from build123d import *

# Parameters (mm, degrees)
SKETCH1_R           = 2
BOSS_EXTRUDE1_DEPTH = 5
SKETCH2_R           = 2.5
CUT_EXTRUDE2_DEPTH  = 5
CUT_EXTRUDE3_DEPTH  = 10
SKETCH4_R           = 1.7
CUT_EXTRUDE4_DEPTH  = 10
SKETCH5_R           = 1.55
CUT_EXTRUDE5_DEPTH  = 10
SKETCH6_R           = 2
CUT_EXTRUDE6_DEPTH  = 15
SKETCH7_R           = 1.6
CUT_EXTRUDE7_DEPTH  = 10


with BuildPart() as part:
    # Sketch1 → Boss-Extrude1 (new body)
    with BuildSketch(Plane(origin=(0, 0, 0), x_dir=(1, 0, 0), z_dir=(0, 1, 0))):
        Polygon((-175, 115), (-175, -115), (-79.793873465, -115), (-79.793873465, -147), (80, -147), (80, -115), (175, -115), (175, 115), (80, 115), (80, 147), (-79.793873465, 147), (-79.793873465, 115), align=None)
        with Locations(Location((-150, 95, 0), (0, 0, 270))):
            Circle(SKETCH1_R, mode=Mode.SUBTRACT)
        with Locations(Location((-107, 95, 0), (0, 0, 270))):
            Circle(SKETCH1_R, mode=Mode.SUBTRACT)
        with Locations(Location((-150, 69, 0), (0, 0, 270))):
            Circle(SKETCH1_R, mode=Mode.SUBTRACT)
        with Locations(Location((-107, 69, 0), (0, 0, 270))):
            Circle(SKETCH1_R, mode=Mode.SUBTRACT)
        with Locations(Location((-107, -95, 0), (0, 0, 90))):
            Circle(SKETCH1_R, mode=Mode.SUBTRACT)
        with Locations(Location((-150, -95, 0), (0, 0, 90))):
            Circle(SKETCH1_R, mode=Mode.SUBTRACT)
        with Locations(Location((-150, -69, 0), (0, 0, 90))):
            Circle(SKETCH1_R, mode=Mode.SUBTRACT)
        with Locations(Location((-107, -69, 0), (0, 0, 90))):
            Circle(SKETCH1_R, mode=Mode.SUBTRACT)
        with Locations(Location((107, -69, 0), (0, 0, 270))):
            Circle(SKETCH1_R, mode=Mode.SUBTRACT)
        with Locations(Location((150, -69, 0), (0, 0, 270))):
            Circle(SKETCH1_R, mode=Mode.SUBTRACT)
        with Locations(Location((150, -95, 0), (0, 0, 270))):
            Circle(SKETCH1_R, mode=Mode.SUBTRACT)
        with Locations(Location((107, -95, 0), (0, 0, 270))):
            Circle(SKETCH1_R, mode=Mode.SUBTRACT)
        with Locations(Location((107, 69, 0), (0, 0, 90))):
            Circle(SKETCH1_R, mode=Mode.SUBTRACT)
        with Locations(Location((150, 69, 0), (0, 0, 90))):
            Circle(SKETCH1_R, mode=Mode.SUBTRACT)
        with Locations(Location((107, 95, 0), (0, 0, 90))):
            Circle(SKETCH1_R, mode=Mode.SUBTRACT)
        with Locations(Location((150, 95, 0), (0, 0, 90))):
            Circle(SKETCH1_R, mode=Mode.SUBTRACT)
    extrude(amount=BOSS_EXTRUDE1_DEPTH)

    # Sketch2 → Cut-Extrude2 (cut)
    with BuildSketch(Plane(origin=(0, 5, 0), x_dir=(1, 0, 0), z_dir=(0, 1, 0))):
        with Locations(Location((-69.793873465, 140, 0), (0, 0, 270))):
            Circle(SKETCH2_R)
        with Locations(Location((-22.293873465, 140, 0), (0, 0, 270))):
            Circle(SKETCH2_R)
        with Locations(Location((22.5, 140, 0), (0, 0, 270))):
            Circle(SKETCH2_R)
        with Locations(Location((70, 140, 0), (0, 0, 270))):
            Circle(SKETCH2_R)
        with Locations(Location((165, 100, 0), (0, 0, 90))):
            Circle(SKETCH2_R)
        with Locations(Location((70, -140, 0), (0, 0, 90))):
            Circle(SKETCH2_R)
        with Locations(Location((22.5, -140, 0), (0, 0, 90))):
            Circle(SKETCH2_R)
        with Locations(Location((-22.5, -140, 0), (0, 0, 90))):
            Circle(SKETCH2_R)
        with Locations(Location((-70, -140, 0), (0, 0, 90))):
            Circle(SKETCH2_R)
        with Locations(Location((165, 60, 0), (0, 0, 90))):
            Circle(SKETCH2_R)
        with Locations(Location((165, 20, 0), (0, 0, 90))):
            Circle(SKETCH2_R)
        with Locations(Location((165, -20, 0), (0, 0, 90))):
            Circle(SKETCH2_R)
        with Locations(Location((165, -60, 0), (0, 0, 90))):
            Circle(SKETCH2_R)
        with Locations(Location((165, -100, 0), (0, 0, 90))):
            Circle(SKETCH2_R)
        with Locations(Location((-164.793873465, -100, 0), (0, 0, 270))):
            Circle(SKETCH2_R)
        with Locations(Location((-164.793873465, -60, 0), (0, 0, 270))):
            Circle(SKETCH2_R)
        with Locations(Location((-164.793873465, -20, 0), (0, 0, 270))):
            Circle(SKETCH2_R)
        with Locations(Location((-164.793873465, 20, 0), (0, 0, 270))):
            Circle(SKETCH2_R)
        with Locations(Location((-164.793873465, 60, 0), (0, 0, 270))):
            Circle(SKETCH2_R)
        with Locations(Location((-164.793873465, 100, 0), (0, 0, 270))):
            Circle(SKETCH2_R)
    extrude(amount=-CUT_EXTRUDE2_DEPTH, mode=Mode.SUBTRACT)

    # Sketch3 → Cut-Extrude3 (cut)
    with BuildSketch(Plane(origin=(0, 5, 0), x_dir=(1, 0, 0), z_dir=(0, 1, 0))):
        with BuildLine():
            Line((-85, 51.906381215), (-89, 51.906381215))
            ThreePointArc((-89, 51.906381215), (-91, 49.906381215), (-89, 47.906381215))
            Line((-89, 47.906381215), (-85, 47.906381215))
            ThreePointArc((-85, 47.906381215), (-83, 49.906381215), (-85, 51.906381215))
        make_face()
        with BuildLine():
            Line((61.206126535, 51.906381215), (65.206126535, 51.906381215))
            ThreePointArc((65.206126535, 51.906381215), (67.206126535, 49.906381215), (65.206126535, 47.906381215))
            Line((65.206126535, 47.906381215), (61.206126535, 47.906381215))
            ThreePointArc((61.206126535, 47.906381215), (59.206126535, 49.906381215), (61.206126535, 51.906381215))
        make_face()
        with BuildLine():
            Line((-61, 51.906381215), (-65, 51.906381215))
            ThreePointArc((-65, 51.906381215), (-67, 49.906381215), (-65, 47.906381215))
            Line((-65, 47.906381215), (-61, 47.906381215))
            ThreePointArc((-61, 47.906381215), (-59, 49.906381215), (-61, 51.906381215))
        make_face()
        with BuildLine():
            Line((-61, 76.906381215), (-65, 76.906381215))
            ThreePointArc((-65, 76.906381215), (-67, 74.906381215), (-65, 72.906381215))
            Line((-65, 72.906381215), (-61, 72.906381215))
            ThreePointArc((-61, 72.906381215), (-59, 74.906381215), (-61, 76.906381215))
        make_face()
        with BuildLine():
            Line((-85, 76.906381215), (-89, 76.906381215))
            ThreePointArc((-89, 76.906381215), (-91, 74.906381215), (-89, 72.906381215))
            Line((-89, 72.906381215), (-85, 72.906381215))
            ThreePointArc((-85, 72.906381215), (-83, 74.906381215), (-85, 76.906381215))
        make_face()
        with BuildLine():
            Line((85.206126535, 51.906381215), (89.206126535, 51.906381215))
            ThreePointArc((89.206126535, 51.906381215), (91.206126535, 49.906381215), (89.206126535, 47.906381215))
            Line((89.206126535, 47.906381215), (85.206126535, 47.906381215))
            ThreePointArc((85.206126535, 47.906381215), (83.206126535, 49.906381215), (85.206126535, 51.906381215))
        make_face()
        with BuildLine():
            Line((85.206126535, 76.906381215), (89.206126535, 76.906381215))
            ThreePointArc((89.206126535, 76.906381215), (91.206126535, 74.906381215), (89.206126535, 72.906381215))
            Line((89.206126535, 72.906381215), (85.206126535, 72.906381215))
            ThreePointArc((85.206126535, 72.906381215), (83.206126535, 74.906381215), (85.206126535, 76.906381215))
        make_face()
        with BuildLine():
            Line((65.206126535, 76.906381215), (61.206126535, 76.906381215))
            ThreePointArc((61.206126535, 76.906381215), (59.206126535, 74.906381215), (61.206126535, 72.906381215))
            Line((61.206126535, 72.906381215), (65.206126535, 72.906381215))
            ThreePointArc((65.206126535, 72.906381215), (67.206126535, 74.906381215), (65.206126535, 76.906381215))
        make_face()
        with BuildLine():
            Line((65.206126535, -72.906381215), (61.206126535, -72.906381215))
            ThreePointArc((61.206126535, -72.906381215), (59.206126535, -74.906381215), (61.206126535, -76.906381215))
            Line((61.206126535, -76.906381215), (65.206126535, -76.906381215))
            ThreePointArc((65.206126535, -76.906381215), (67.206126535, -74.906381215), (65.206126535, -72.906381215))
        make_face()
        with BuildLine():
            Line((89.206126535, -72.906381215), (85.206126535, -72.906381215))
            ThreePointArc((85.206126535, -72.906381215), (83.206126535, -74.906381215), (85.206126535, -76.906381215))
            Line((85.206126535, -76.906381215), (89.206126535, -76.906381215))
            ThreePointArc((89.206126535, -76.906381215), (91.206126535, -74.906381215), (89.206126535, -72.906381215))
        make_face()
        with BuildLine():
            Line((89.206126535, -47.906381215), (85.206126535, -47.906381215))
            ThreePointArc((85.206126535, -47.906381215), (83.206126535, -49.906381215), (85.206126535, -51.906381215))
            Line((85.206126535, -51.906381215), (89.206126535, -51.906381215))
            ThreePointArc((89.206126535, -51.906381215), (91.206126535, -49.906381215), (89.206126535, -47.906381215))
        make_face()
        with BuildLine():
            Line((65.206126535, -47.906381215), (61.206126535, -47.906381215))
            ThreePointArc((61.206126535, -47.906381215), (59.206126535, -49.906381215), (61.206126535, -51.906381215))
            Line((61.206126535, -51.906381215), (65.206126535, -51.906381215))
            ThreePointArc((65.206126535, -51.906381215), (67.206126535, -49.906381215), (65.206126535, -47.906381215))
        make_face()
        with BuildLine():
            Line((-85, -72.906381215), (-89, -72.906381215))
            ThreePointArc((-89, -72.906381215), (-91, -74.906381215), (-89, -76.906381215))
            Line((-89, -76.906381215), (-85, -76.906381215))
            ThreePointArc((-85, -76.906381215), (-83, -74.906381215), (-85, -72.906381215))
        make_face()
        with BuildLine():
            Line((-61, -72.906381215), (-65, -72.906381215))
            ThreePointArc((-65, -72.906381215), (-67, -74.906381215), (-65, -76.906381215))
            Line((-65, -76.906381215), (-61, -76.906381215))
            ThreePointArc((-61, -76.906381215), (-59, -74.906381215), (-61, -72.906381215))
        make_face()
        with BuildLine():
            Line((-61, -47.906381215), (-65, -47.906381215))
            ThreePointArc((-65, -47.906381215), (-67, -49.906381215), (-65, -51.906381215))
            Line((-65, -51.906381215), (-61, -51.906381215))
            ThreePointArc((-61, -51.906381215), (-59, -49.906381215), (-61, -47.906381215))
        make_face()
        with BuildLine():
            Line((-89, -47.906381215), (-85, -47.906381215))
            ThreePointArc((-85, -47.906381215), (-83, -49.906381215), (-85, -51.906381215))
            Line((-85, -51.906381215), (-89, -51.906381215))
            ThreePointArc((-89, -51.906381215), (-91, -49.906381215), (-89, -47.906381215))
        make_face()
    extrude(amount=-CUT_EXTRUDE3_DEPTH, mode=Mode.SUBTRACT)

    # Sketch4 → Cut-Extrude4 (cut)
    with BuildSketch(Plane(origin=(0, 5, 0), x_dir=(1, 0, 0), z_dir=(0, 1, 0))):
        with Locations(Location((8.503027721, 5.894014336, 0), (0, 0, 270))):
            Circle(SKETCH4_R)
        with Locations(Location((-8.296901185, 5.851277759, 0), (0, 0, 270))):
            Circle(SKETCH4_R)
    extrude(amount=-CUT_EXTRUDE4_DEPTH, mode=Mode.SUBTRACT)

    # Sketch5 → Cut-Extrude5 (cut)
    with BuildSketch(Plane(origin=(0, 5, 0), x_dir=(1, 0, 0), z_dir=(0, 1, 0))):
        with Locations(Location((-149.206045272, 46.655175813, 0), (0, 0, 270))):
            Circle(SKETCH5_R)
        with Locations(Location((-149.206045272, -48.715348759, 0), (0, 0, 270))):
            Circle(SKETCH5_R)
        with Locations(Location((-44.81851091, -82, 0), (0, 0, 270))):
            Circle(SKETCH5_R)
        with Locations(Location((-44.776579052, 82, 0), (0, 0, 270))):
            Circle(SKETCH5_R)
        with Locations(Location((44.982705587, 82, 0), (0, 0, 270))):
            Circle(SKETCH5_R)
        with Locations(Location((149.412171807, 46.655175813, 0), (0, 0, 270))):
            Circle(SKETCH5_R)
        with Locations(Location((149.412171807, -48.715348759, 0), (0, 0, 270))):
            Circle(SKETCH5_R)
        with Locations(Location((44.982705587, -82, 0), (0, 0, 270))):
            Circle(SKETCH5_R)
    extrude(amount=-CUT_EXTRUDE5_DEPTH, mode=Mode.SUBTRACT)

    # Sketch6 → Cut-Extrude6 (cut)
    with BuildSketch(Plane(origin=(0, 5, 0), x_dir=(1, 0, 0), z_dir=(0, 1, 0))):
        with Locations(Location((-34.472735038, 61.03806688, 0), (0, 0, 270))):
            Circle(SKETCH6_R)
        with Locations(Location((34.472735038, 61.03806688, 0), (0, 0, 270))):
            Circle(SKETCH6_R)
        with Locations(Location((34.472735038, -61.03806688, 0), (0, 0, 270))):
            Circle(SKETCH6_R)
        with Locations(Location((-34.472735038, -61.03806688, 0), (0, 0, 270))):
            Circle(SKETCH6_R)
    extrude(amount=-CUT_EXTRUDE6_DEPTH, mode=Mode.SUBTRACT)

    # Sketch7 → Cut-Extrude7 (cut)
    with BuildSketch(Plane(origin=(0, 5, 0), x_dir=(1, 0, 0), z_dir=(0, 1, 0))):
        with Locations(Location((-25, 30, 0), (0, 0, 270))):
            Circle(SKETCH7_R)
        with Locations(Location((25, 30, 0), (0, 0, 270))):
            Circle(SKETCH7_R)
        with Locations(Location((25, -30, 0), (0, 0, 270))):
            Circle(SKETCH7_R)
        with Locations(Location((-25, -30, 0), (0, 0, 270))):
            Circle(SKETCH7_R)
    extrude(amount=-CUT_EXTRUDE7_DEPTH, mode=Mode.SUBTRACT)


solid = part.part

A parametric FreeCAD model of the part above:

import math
import FreeCAD as App
import Part
import Sketcher

doc = App.newDocument("Part")
body = doc.addObject("PartDesign::Body", "Body")

# Sketch on XZ plane
sketch1 = body.newObject("Sketcher::SketchObject", "Sketch")
sketch1.AttachmentSupport = (doc.getObject("XZ_Plane"), [""])
sketch1.MapMode = "FlatFace"
sketch1.addGeometry([
    Part.LineSegment(App.Vector(-175, -115, 0), App.Vector(-175, 115, 0)),  # 0
    Part.LineSegment(App.Vector(-175, 115, 0), App.Vector(-79.8, 115, 0)),  # 1
    Part.LineSegment(App.Vector(-79.8, 115, 0), App.Vector(-79.8, 147, 0)),  # 2
    Part.LineSegment(App.Vector(-79.8, 147, 0), App.Vector(80, 147, 0)),  # 3
    Part.LineSegment(App.Vector(80, 147, 0), App.Vector(80, 115, 0)),  # 4
    Part.LineSegment(App.Vector(80, 115, 0), App.Vector(175, 115, 0)),  # 5
    Part.LineSegment(App.Vector(175, 115, 0), App.Vector(175, -115, 0)),  # 6
    Part.LineSegment(App.Vector(175, -115, 0), App.Vector(80, -115, 0)),  # 7
    Part.LineSegment(App.Vector(80, -115, 0), App.Vector(80, -147, 0)),  # 8
    Part.LineSegment(App.Vector(80, -147, 0), App.Vector(-79.8, -147, 0)),  # 9
    Part.LineSegment(App.Vector(-79.8, -147, 0), App.Vector(-79.8, -115, 0)),  # 10
    Part.LineSegment(App.Vector(-79.8, -115, 0), App.Vector(-175, -115, 0)),  # 11
    Part.Circle(App.Vector(-150, 95, 0), App.Vector(0, 0, 1), 2),  # 12
    Part.Circle(App.Vector(-107, 95, 0), App.Vector(0, 0, 1), 2),  # 13
    Part.Circle(App.Vector(-150, 69, 0), App.Vector(0, 0, 1), 2),  # 14
    Part.Circle(App.Vector(-107, 69, 0), App.Vector(0, 0, 1), 2),  # 15
    Part.Circle(App.Vector(107, 95, 0), App.Vector(0, 0, 1), 2),  # 16
    Part.Circle(App.Vector(150, 95, 0), App.Vector(0, 0, 1), 2),  # 17
    Part.Circle(App.Vector(107, 69, 0), App.Vector(0, 0, 1), 2),  # 18
    Part.Circle(App.Vector(150, 69, 0), App.Vector(0, 0, 1), 2),  # 19
    Part.Circle(App.Vector(-150, -69, 0), App.Vector(0, 0, 1), 2),  # 20
    Part.Circle(App.Vector(-107, -69, 0), App.Vector(0, 0, 1), 2),  # 21
    Part.Circle(App.Vector(-150, -95, 0), App.Vector(0, 0, 1), 2),  # 22
    Part.Circle(App.Vector(-107, -95, 0), App.Vector(0, 0, 1), 2),  # 23
    Part.Circle(App.Vector(107, -69, 0), App.Vector(0, 0, 1), 2),  # 24
    Part.Circle(App.Vector(150, -69, 0), App.Vector(0, 0, 1), 2),  # 25
    Part.Circle(App.Vector(107, -95, 0), App.Vector(0, 0, 1), 2),  # 26
    Part.Circle(App.Vector(150, -95, 0), App.Vector(0, 0, 1), 2),  # 27
], False)
sketch1.addConstraint([
    Sketcher.Constraint("Coincident", 0, 2, 1, 1),
    Sketcher.Constraint("Coincident", 1, 2, 2, 1),
    Sketcher.Constraint("Coincident", 2, 2, 3, 1),
    Sketcher.Constraint("Coincident", 3, 2, 4, 1),
    Sketcher.Constraint("Coincident", 4, 2, 5, 1),
    Sketcher.Constraint("Coincident", 5, 2, 6, 1),
    Sketcher.Constraint("Coincident", 6, 2, 7, 1),
    Sketcher.Constraint("Coincident", 7, 2, 8, 1),
    Sketcher.Constraint("Coincident", 8, 2, 9, 1),
    Sketcher.Constraint("Coincident", 9, 2, 10, 1),
    Sketcher.Constraint("Coincident", 10, 2, 11, 1),
    Sketcher.Constraint("Coincident", 11, 2, 0, 1),
    Sketcher.Constraint("Vertical", 0),
    Sketcher.Constraint("Horizontal", 1),
    Sketcher.Constraint("Vertical", 2),
    Sketcher.Constraint("Horizontal", 3),
    Sketcher.Constraint("Vertical", 4),
    Sketcher.Constraint("Horizontal", 5),
    Sketcher.Constraint("Vertical", 6),
    Sketcher.Constraint("Horizontal", 7),
    Sketcher.Constraint("Vertical", 8),
    Sketcher.Constraint("Horizontal", 9),
    Sketcher.Constraint("Vertical", 10),
    Sketcher.Constraint("Horizontal", 11),
    Sketcher.Constraint("Equal", 12, 13),
    Sketcher.Constraint("Equal", 13, 14),
    Sketcher.Constraint("Equal", 14, 15),
    Sketcher.Constraint("Equal", 15, 16),
    Sketcher.Constraint("Equal", 16, 17),
    Sketcher.Constraint("Equal", 17, 18),
    Sketcher.Constraint("Equal", 18, 19),
    Sketcher.Constraint("Equal", 19, 20),
    Sketcher.Constraint("Equal", 20, 21),
    Sketcher.Constraint("Equal", 21, 22),
    Sketcher.Constraint("Equal", 22, 23),
    Sketcher.Constraint("Equal", 23, 24),
    Sketcher.Constraint("Equal", 24, 25),
    Sketcher.Constraint("Equal", 25, 26),
    Sketcher.Constraint("Equal", 26, 27),
    Sketcher.Constraint("Symmetric", 19, 3, 20, 3, -1, 1),
    Sketcher.Constraint("Symmetric", 18, 3, 21, 3, -1, 1),
    Sketcher.Constraint("Symmetric", 17, 3, 22, 3, -1, 1),
    Sketcher.Constraint("Symmetric", 16, 3, 23, 3, -1, 1),
    Sketcher.Constraint("Symmetric", 15, 3, 24, 3, -1, 1),
    Sketcher.Constraint("Symmetric", 14, 3, 25, 3, -1, 1),
    Sketcher.Constraint("Symmetric", 13, 3, 26, 3, -1, 1),
    Sketcher.Constraint("Symmetric", 12, 3, 27, 3, -1, 1),
    Sketcher.Constraint("Symmetric", 0, 2, 6, 2, -1, 1),
    Sketcher.Constraint("Symmetric", 13, 3, 16, 3, -2),
    Sketcher.Constraint("Symmetric", 12, 3, 17, 3, -2),
    Sketcher.Constraint("Symmetric", 15, 3, 18, 3, -2),
    Sketcher.Constraint("Symmetric", 14, 3, 19, 3, -2),
    Sketcher.Constraint("Symmetric", 4, 2, 7, 2, -1),
    Sketcher.Constraint("Symmetric", 2, 2, 9, 2, -1),
    Sketcher.Constraint("Horizontal", 12, 3, 13, 3),
    Sketcher.Constraint("Horizontal", 14, 3, 15, 3),
    Sketcher.Constraint("Horizontal", 7, 2, 10, 2),
    Sketcher.Constraint("Vertical", 12, 3, 14, 3),
    Sketcher.Constraint("Vertical", 13, 3, 15, 3),
    Sketcher.Constraint("Diameter", 12, 4.0),
    Sketcher.Constraint("DistanceX", 5, 1, 5, 2, 95.0),
    Sketcher.Constraint("DistanceY", 0, 1, 0, 2, 230.0),
    Sketcher.Constraint("DistanceY", 2, 1, 2, 2, 32.0),
    Sketcher.Constraint("DistanceX", 12, 3, -1, 1, 150.0),
    Sketcher.Constraint("DistanceY", -1, 1, 12, 3, 95.0),
    Sketcher.Constraint("DistanceX", 13, 3, -1, 1, 107.0),
    Sketcher.Constraint("DistanceY", -1, 1, 14, 3, 69.0),
    Sketcher.Constraint("DistanceX", 0, 2, -1, 1, 175.0),
    Sketcher.Constraint("DistanceX", 1, 1, 1, 2, 95.206127),
])
pad1 = body.newObject("PartDesign::Pad", "Pad")
pad1.Profile = sketch1
pad1.Length = 5
pad1.Reversed = True

# Sketch on XZ plane
sketch2 = body.newObject("Sketcher::SketchObject", "Sketch001")
sketch2.AttachmentSupport = (doc.getObject("XZ_Plane"), [""])
sketch2.MapMode = "FlatFace"
sketch2.AttachmentOffset = App.Placement(App.Vector(0, 0, -5), App.Rotation())
sketch2.addGeometry([
    Part.Circle(App.Vector(-69.8, -140, 0), App.Vector(0, 0, 1), 2.5),  # 0
    Part.Circle(App.Vector(-22.3, -140, 0), App.Vector(0, 0, 1), 2.5),  # 1
    Part.Circle(App.Vector(22.5, -140, 0), App.Vector(0, 0, 1), 2.5),  # 2
    Part.Circle(App.Vector(70, -140, 0), App.Vector(0, 0, 1), 2.5),  # 3
    Part.Circle(App.Vector(165, -100, 0), App.Vector(0, 0, 1), 2.5),  # 4
    Part.Circle(App.Vector(70, 140, 0), App.Vector(0, 0, 1), 2.5),  # 5
    Part.Circle(App.Vector(22.5, 140, 0), App.Vector(0, 0, 1), 2.5),  # 6
    Part.Circle(App.Vector(-22.5, 140, 0), App.Vector(0, 0, 1), 2.5),  # 7
    Part.Circle(App.Vector(-70, 140, 0), App.Vector(0, 0, 1), 2.5),  # 8
    Part.Circle(App.Vector(165, -60, 0), App.Vector(0, 0, 1), 2.5),  # 9
    Part.Circle(App.Vector(165, -20, 0), App.Vector(0, 0, 1), 2.5),  # 10
    Part.Circle(App.Vector(165, 20, 0), App.Vector(0, 0, 1), 2.5),  # 11
    Part.Circle(App.Vector(165, 60, 0), App.Vector(0, 0, 1), 2.5),  # 12
    Part.Circle(App.Vector(165, 100, 0), App.Vector(0, 0, 1), 2.5),  # 13
    Part.Circle(App.Vector(-164.8, 100, 0), App.Vector(0, 0, 1), 2.5),  # 14
    Part.Circle(App.Vector(-164.8, 60, 0), App.Vector(0, 0, 1), 2.5),  # 15
    Part.Circle(App.Vector(-164.8, 20, 0), App.Vector(0, 0, 1), 2.5),  # 16
    Part.Circle(App.Vector(-164.8, -20, 0), App.Vector(0, 0, 1), 2.5),  # 17
    Part.Circle(App.Vector(-164.8, -60, 0), App.Vector(0, 0, 1), 2.5),  # 18
    Part.Circle(App.Vector(-164.8, -100, 0), App.Vector(0, 0, 1), 2.5),  # 19
], False)
sketch2.addConstraint([
    Sketcher.Constraint("Equal", 0, 1),
    Sketcher.Constraint("Equal", 1, 2),
    Sketcher.Constraint("Equal", 2, 3),
    Sketcher.Constraint("Equal", 3, 4),
    Sketcher.Constraint("Equal", 4, 5),
    Sketcher.Constraint("Equal", 5, 6),
    Sketcher.Constraint("Equal", 6, 7),
    Sketcher.Constraint("Equal", 7, 8),
    Sketcher.Constraint("Equal", 8, 9),
    Sketcher.Constraint("Equal", 9, 10),
    Sketcher.Constraint("Equal", 10, 11),
    Sketcher.Constraint("Equal", 11, 12),
    Sketcher.Constraint("Equal", 12, 13),
    Sketcher.Constraint("Equal", 13, 14),
    Sketcher.Constraint("Equal", 14, 15),
    Sketcher.Constraint("Equal", 15, 16),
    Sketcher.Constraint("Equal", 16, 17),
    Sketcher.Constraint("Equal", 17, 18),
    Sketcher.Constraint("Equal", 18, 19),
    Sketcher.Constraint("Symmetric", 2, 3, 7, 3, -1, 1),
    Sketcher.Constraint("Symmetric", 3, 3, 8, 3, -1, 1),
    Sketcher.Constraint("Symmetric", 6, 3, 7, 3, -2),
    Sketcher.Constraint("Symmetric", 5, 3, 8, 3, -2),
    Sketcher.Constraint("Symmetric", 10, 3, 11, 3, -1),
    Sketcher.Constraint("Symmetric", 9, 3, 12, 3, -1),
    Sketcher.Constraint("Symmetric", 4, 3, 13, 3, -1),
    Sketcher.Constraint("Symmetric", 16, 3, 17, 3, -1),
    Sketcher.Constraint("Symmetric", 15, 3, 18, 3, -1),
    Sketcher.Constraint("Symmetric", 14, 3, 19, 3, -1),
    Sketcher.Constraint("Horizontal", 0, 3, 1, 3),
    Sketcher.Constraint("Horizontal", 1, 3, 2, 3),
    Sketcher.Constraint("Horizontal", 2, 3, 3, 3),
    Sketcher.Constraint("Horizontal", 13, 3, 14, 3),
    Sketcher.Constraint("Horizontal", 12, 3, 15, 3),
    Sketcher.Constraint("Horizontal", 11, 3, 16, 3),
    Sketcher.Constraint("Vertical", 4, 3, 9, 3),
    Sketcher.Constraint("Vertical", 9, 3, 10, 3),
    Sketcher.Constraint("Vertical", 14, 3, 15, 3),
    Sketcher.Constraint("Vertical", 15, 3, 16, 3),
    Sketcher.Constraint("Diameter", 0, 5.0),
    Sketcher.Constraint("DistanceY", 0, 3, -1, 1, 140.0),
    Sketcher.Constraint("DistanceX", -1, 1, 3, 3, 70.0),
    Sketcher.Constraint("DistanceX", -1, 1, 4, 3, 165.0),
    Sketcher.Constraint("DistanceY", 4, 3, -1, 1, 100.0),
    Sketcher.Constraint("DistanceY", 9, 3, -1, 1, 60.0),
    Sketcher.Constraint("DistanceY", 10, 3, -1, 1, 20.0),
    Sketcher.Constraint("DistanceX", 7, 3, 6, 3, 45.0),
    Sketcher.Constraint("DistanceX", 14, 3, 0, 3, 95.0),
    Sketcher.Constraint("DistanceX", 0, 3, 1, 3, 47.5),
    Sketcher.Constraint("DistanceX", 0, 3, -1, 1, 69.793873),
])
pocket1 = body.newObject("PartDesign::Pocket", "Pocket")
pocket1.Profile = sketch2
pocket1.Length = 5
pocket1.Reversed = True

# Sketch on XZ plane
sketch3 = body.newObject("Sketcher::SketchObject", "Sketch002")
sketch3.AttachmentSupport = (doc.getObject("XZ_Plane"), [""])
sketch3.MapMode = "FlatFace"
sketch3.AttachmentOffset = App.Placement(App.Vector(0, 0, -5), App.Rotation())
sketch3.addGeometry([
    Part.LineSegment(App.Vector(-85, -51.9, 0), App.Vector(-89, -51.9, 0)),  # 0
    Part.ArcOfCircle(Part.Circle(App.Vector(-89, -49.9, 0), App.Vector(0, 0, 1), 2), math.radians(90), math.radians(270)),  # 1
    Part.LineSegment(App.Vector(-89, -47.9, 0), App.Vector(-85, -47.9, 0)),  # 2
    Part.ArcOfCircle(Part.Circle(App.Vector(-85, -49.9, 0), App.Vector(0, 0, 1), 2), math.radians(-90), math.radians(90)),  # 3
    Part.LineSegment(App.Vector(65.2, -51.9, 0), App.Vector(61.2, -51.9, 0)),  # 4
    Part.ArcOfCircle(Part.Circle(App.Vector(61.2, -49.9, 0), App.Vector(0, 0, 1), 2), math.radians(90), math.radians(270)),  # 5
    Part.LineSegment(App.Vector(61.2, -47.9, 0), App.Vector(65.2, -47.9, 0)),  # 6
    Part.ArcOfCircle(Part.Circle(App.Vector(65.2, -49.9, 0), App.Vector(0, 0, 1), 2), math.radians(-90), math.radians(90)),  # 7
    Part.LineSegment(App.Vector(-61, -51.9, 0), App.Vector(-65, -51.9, 0)),  # 8
    Part.ArcOfCircle(Part.Circle(App.Vector(-65, -49.9, 0), App.Vector(0, 0, 1), 2), math.radians(90), math.radians(270)),  # 9
    Part.LineSegment(App.Vector(-65, -47.9, 0), App.Vector(-61, -47.9, 0)),  # 10
    Part.ArcOfCircle(Part.Circle(App.Vector(-61, -49.9, 0), App.Vector(0, 0, 1), 2), math.radians(-90), math.radians(90)),  # 11
    Part.LineSegment(App.Vector(-61, -76.9, 0), App.Vector(-65, -76.9, 0)),  # 12
    Part.ArcOfCircle(Part.Circle(App.Vector(-65, -74.9, 0), App.Vector(0, 0, 1), 2), math.radians(90), math.radians(270)),  # 13
    Part.LineSegment(App.Vector(-65, -72.9, 0), App.Vector(-61, -72.9, 0)),  # 14
    Part.ArcOfCircle(Part.Circle(App.Vector(-61, -74.9, 0), App.Vector(0, 0, 1), 2), math.radians(-90), math.radians(90)),  # 15
    Part.LineSegment(App.Vector(-85, -76.9, 0), App.Vector(-89, -76.9, 0)),  # 16
    Part.ArcOfCircle(Part.Circle(App.Vector(-89, -74.9, 0), App.Vector(0, 0, 1), 2), math.radians(90), math.radians(270)),  # 17
    Part.LineSegment(App.Vector(-89, -72.9, 0), App.Vector(-85, -72.9, 0)),  # 18
    Part.ArcOfCircle(Part.Circle(App.Vector(-85, -74.9, 0), App.Vector(0, 0, 1), 2), math.radians(-90), math.radians(90)),  # 19
    Part.LineSegment(App.Vector(89.2, -51.9, 0), App.Vector(85.2, -51.9, 0)),  # 20
    Part.ArcOfCircle(Part.Circle(App.Vector(85.2, -49.9, 0), App.Vector(0, 0, 1), 2), math.radians(90), math.radians(270)),  # 21
    Part.LineSegment(App.Vector(85.2, -47.9, 0), App.Vector(89.2, -47.9, 0)),  # 22
    Part.ArcOfCircle(Part.Circle(App.Vector(89.2, -49.9, 0), App.Vector(0, 0, 1), 2), math.radians(-90), math.radians(90)),  # 23
    Part.LineSegment(App.Vector(89.2, -76.9, 0), App.Vector(85.2, -76.9, 0)),  # 24
    Part.ArcOfCircle(Part.Circle(App.Vector(85.2, -74.9, 0), App.Vector(0, 0, 1), 2), math.radians(90), math.radians(270)),  # 25
    Part.LineSegment(App.Vector(85.2, -72.9, 0), App.Vector(89.2, -72.9, 0)),  # 26
    Part.ArcOfCircle(Part.Circle(App.Vector(89.2, -74.9, 0), App.Vector(0, 0, 1), 2), math.radians(-90), math.radians(90)),  # 27
    Part.LineSegment(App.Vector(65.2, -76.9, 0), App.Vector(61.2, -76.9, 0)),  # 28
    Part.ArcOfCircle(Part.Circle(App.Vector(61.2, -74.9, 0), App.Vector(0, 0, 1), 2), math.radians(90), math.radians(270)),  # 29
    Part.LineSegment(App.Vector(61.2, -72.9, 0), App.Vector(65.2, -72.9, 0)),  # 30
    Part.ArcOfCircle(Part.Circle(App.Vector(65.2, -74.9, 0), App.Vector(0, 0, 1), 2), math.radians(-90), math.radians(90)),  # 31
    Part.LineSegment(App.Vector(65.2, 72.9, 0), App.Vector(61.2, 72.9, 0)),  # 32
    Part.ArcOfCircle(Part.Circle(App.Vector(61.2, 74.9, 0), App.Vector(0, 0, 1), 2), math.radians(90), math.radians(270)),  # 33
    Part.LineSegment(App.Vector(61.2, 76.9, 0), App.Vector(65.2, 76.9, 0)),  # 34
    Part.ArcOfCircle(Part.Circle(App.Vector(65.2, 74.9, 0), App.Vector(0, 0, 1), 2), math.radians(-90), math.radians(90)),  # 35
    Part.LineSegment(App.Vector(89.2, 72.9, 0), App.Vector(85.2, 72.9, 0)),  # 36
    Part.ArcOfCircle(Part.Circle(App.Vector(85.2, 74.9, 0), App.Vector(0, 0, 1), 2), math.radians(90), math.radians(270)),  # 37
    Part.LineSegment(App.Vector(85.2, 76.9, 0), App.Vector(89.2, 76.9, 0)),  # 38
    Part.ArcOfCircle(Part.Circle(App.Vector(89.2, 74.9, 0), App.Vector(0, 0, 1), 2), math.radians(-90), math.radians(90)),  # 39
    Part.LineSegment(App.Vector(89.2, 47.9, 0), App.Vector(85.2, 47.9, 0)),  # 40
    Part.ArcOfCircle(Part.Circle(App.Vector(85.2, 49.9, 0), App.Vector(0, 0, 1), 2), math.radians(90), math.radians(270)),  # 41
    Part.LineSegment(App.Vector(85.2, 51.9, 0), App.Vector(89.2, 51.9, 0)),  # 42
    Part.ArcOfCircle(Part.Circle(App.Vector(89.2, 49.9, 0), App.Vector(0, 0, 1), 2), math.radians(-90), math.radians(90)),  # 43
    Part.LineSegment(App.Vector(65.2, 47.9, 0), App.Vector(61.2, 47.9, 0)),  # 44
    Part.ArcOfCircle(Part.Circle(App.Vector(61.2, 49.9, 0), App.Vector(0, 0, 1), 2), math.radians(90), math.radians(270)),  # 45
    Part.LineSegment(App.Vector(61.2, 51.9, 0), App.Vector(65.2, 51.9, 0)),  # 46
    Part.ArcOfCircle(Part.Circle(App.Vector(65.2, 49.9, 0), App.Vector(0, 0, 1), 2), math.radians(-90), math.radians(90)),  # 47
    Part.LineSegment(App.Vector(-85, 72.9, 0), App.Vector(-89, 72.9, 0)),  # 48
    Part.ArcOfCircle(Part.Circle(App.Vector(-89, 74.9, 0), App.Vector(0, 0, 1), 2), math.radians(90), math.radians(270)),  # 49
    Part.LineSegment(App.Vector(-89, 76.9, 0), App.Vector(-85, 76.9, 0)),  # 50
    Part.ArcOfCircle(Part.Circle(App.Vector(-85, 74.9, 0), App.Vector(0, 0, 1), 2), math.radians(-90), math.radians(90)),  # 51
    Part.LineSegment(App.Vector(-61, 72.9, 0), App.Vector(-65, 72.9, 0)),  # 52
    Part.ArcOfCircle(Part.Circle(App.Vector(-65, 74.9, 0), App.Vector(0, 0, 1), 2), math.radians(90), math.radians(270)),  # 53
    Part.LineSegment(App.Vector(-65, 76.9, 0), App.Vector(-61, 76.9, 0)),  # 54
    Part.ArcOfCircle(Part.Circle(App.Vector(-61, 74.9, 0), App.Vector(0, 0, 1), 2), math.radians(-90), math.radians(90)),  # 55
    Part.LineSegment(App.Vector(-61, 47.9, 0), App.Vector(-65, 47.9, 0)),  # 56
    Part.ArcOfCircle(Part.Circle(App.Vector(-65, 49.9, 0), App.Vector(0, 0, 1), 2), math.radians(90), math.radians(270)),  # 57
    Part.LineSegment(App.Vector(-65, 51.9, 0), App.Vector(-61, 51.9, 0)),  # 58
    Part.ArcOfCircle(Part.Circle(App.Vector(-61, 49.9, 0), App.Vector(0, 0, 1), 2), math.radians(-90), math.radians(90)),  # 59
    Part.LineSegment(App.Vector(-85, 47.9, 0), App.Vector(-89, 47.9, 0)),  # 60
    Part.ArcOfCircle(Part.Circle(App.Vector(-89, 49.9, 0), App.Vector(0, 0, 1), 2), math.radians(90), math.radians(270)),  # 61
    Part.LineSegment(App.Vector(-89, 51.9, 0), App.Vector(-85, 51.9, 0)),  # 62
    Part.ArcOfCircle(Part.Circle(App.Vector(-85, 49.9, 0), App.Vector(0, 0, 1), 2), math.radians(-90), math.radians(90)),  # 63
], False)
sketch3.addConstraint([
    Sketcher.Constraint("Tangent", 0, 2, 1, 2),
    Sketcher.Constraint("Tangent", 1, 1, 2, 1),
    Sketcher.Constraint("Tangent", 2, 2, 3, 2),
    Sketcher.Constraint("Tangent", 3, 1, 0, 1),
    Sketcher.Constraint("Tangent", 4, 2, 5, 2),
    Sketcher.Constraint("Tangent", 5, 1, 6, 1),
    Sketcher.Constraint("Tangent", 6, 2, 7, 2),
    Sketcher.Constraint("Tangent", 7, 1, 4, 1),
    Sketcher.Constraint("Tangent", 8, 2, 9, 2),
    Sketcher.Constraint("Tangent", 9, 1, 10, 1),
    Sketcher.Constraint("Tangent", 10, 2, 11, 2),
    Sketcher.Constraint("Tangent", 11, 1, 8, 1),
    Sketcher.Constraint("Tangent", 12, 2, 13, 2),
    Sketcher.Constraint("Tangent", 13, 1, 14, 1),
    Sketcher.Constraint("Tangent", 14, 2, 15, 2),
    Sketcher.Constraint("Tangent", 15, 1, 12, 1),
    Sketcher.Constraint("Tangent", 16, 2, 17, 2),
    Sketcher.Constraint("Tangent", 17, 1, 18, 1),
    Sketcher.Constraint("Tangent", 18, 2, 19, 2),
    Sketcher.Constraint("Tangent", 19, 1, 16, 1),
    Sketcher.Constraint("Tangent", 20, 2, 21, 2),
    Sketcher.Constraint("Tangent", 21, 1, 22, 1),
    Sketcher.Constraint("Tangent", 22, 2, 23, 2),
    Sketcher.Constraint("Tangent", 23, 1, 20, 1),
    Sketcher.Constraint("Tangent", 24, 2, 25, 2),
    Sketcher.Constraint("Tangent", 25, 1, 26, 1),
    Sketcher.Constraint("Tangent", 26, 2, 27, 2),
    Sketcher.Constraint("Tangent", 27, 1, 24, 1),
    Sketcher.Constraint("Tangent", 28, 2, 29, 2),
    Sketcher.Constraint("Tangent", 29, 1, 30, 1),
    Sketcher.Constraint("Tangent", 30, 2, 31, 2),
    Sketcher.Constraint("Tangent", 31, 1, 28, 1),
    Sketcher.Constraint("Tangent", 32, 2, 33, 2),
    Sketcher.Constraint("Tangent", 33, 1, 34, 1),
    Sketcher.Constraint("Tangent", 34, 2, 35, 2),
    Sketcher.Constraint("Tangent", 35, 1, 32, 1),
    Sketcher.Constraint("Tangent", 36, 2, 37, 2),
    Sketcher.Constraint("Tangent", 37, 1, 38, 1),
    Sketcher.Constraint("Tangent", 38, 2, 39, 2),
    Sketcher.Constraint("Tangent", 39, 1, 36, 1),
    Sketcher.Constraint("Tangent", 40, 2, 41, 2),
    Sketcher.Constraint("Tangent", 41, 1, 42, 1),
    Sketcher.Constraint("Tangent", 42, 2, 43, 2),
    Sketcher.Constraint("Tangent", 43, 1, 40, 1),
    Sketcher.Constraint("Tangent", 44, 2, 45, 2),
    Sketcher.Constraint("Tangent", 45, 1, 46, 1),
    Sketcher.Constraint("Tangent", 46, 2, 47, 2),
    Sketcher.Constraint("Tangent", 47, 1, 44, 1),
    Sketcher.Constraint("Tangent", 48, 2, 49, 2),
    Sketcher.Constraint("Tangent", 49, 1, 50, 1),
    Sketcher.Constraint("Tangent", 50, 2, 51, 2),
    Sketcher.Constraint("Tangent", 51, 1, 48, 1),
    Sketcher.Constraint("Tangent", 52, 2, 53, 2),
    Sketcher.Constraint("Tangent", 53, 1, 54, 1),
    Sketcher.Constraint("Tangent", 54, 2, 55, 2),
    Sketcher.Constraint("Tangent", 55, 1, 52, 1),
    Sketcher.Constraint("Tangent", 56, 2, 57, 2),
    Sketcher.Constraint("Tangent", 57, 1, 58, 1),
    Sketcher.Constraint("Tangent", 58, 2, 59, 2),
    Sketcher.Constraint("Tangent", 59, 1, 56, 1),
    Sketcher.Constraint("Tangent", 60, 2, 61, 2),
    Sketcher.Constraint("Tangent", 61, 1, 62, 1),
    Sketcher.Constraint("Tangent", 62, 2, 63, 2),
    Sketcher.Constraint("Tangent", 63, 1, 60, 1),
    Sketcher.Constraint("Horizontal", 0),
    Sketcher.Constraint("Horizontal", 2),
    Sketcher.Constraint("Horizontal", 4),
    Sketcher.Constraint("Horizontal", 6),
    Sketcher.Constraint("Horizontal", 8),
    Sketcher.Constraint("Horizontal", 10),
    Sketcher.Constraint("Horizontal", 12),
    Sketcher.Constraint("Horizontal", 14),
    Sketcher.Constraint("Horizontal", 16),
    Sketcher.Constraint("Horizontal", 18),
    Sketcher.Constraint("Horizontal", 20),
    Sketcher.Constraint("Horizontal", 22),
    Sketcher.Constraint("Horizontal", 24),
    Sketcher.Constraint("Horizontal", 26),
    Sketcher.Constraint("Horizontal", 28),
    Sketcher.Constraint("Horizontal", 30),
    Sketcher.Constraint("Horizontal", 32),
    Sketcher.Constraint("Horizontal", 34),
    Sketcher.Constraint("Horizontal", 36),
    Sketcher.Constraint("Horizontal", 38),
    Sketcher.Constraint("Horizontal", 40),
    Sketcher.Constraint("Horizontal", 42),
    Sketcher.Constraint("Horizontal", 44),
    Sketcher.Constraint("Horizontal", 46),
    Sketcher.Constraint("Horizontal", 48),
    Sketcher.Constraint("Horizontal", 50),
    Sketcher.Constraint("Horizontal", 52),
    Sketcher.Constraint("Horizontal", 54),
    Sketcher.Constraint("Horizontal", 56),
    Sketcher.Constraint("Horizontal", 58),
    Sketcher.Constraint("Horizontal", 60),
    Sketcher.Constraint("Horizontal", 62),
    Sketcher.Constraint("Equal", 3, 5),
    Sketcher.Constraint("Equal", 7, 9),
    Sketcher.Constraint("Equal", 11, 13),
    Sketcher.Constraint("Equal", 15, 17),
    Sketcher.Constraint("Equal", 19, 21),
    Sketcher.Constraint("Equal", 23, 25),
    Sketcher.Constraint("Equal", 27, 29),
    Sketcher.Constraint("Equal", 31, 33),
    Sketcher.Constraint("Equal", 35, 37),
    Sketcher.Constraint("Equal", 39, 41),
    Sketcher.Constraint("Equal", 43, 45),
    Sketcher.Constraint("Equal", 47, 49),
    Sketcher.Constraint("Equal", 51, 53),
    Sketcher.Constraint("Equal", 55, 57),
    Sketcher.Constraint("Equal", 59, 61),
    Sketcher.Constraint("Symmetric", 29, 3, 33, 3, -1),
    Sketcher.Constraint("Symmetric", 25, 3, 37, 3, -1),
    Sketcher.Constraint("Symmetric", 21, 3, 41, 3, -1),
    Sketcher.Constraint("Symmetric", 5, 3, 45, 3, -1),
    Sketcher.Constraint("Symmetric", 17, 3, 49, 3, -1),
    Sketcher.Constraint("Symmetric", 13, 3, 53, 3, -1),
    Sketcher.Constraint("Symmetric", 9, 3, 57, 3, -1),
    Sketcher.Constraint("Symmetric", 1, 3, 61, 3, -1),
    Sketcher.Constraint("Horizontal", 3, 3, 5, 3),
    Sketcher.Constraint("Horizontal", 7, 3, 9, 3),
    Sketcher.Constraint("Horizontal", 15, 3, 17, 3),
    Sketcher.Constraint("Horizontal", 11, 3, 21, 3),
    Sketcher.Constraint("Horizontal", 19, 3, 25, 3),
    Sketcher.Constraint("Horizontal", 27, 3, 29, 3),
    Sketcher.Constraint("Vertical", 9, 3, 13, 3),
    Sketcher.Constraint("Vertical", 11, 3, 15, 3),
    Sketcher.Constraint("Vertical", 1, 3, 17, 3),
    Sketcher.Constraint("Vertical", 3, 3, 19, 3),
    Sketcher.Constraint("Vertical", 21, 3, 25, 3),
    Sketcher.Constraint("Vertical", 23, 3, 27, 3),
    Sketcher.Constraint("Vertical", 5, 3, 29, 3),
    Sketcher.Constraint("Vertical", 7, 3, 31, 3),
    Sketcher.Constraint("Vertical", 31, 3, 35, 3),
    Sketcher.Constraint("Vertical", 27, 3, 39, 3),
    Sketcher.Constraint("Vertical", 39, 3, 43, 3),
    Sketcher.Constraint("Vertical", 35, 3, 47, 3),
    Sketcher.Constraint("Vertical", 19, 3, 51, 3),
    Sketcher.Constraint("Vertical", 15, 3, 55, 3),
    Sketcher.Constraint("Vertical", 55, 3, 59, 3),
    Sketcher.Constraint("Vertical", 51, 3, 63, 3),
    Sketcher.Constraint("Equal", 2, 4),
    Sketcher.Constraint("Equal", 6, 8),
    Sketcher.Constraint("Equal", 18, 20),
    Sketcher.Constraint("Radius", 1, 2.0),
    Sketcher.Constraint("DistanceX", 0, 2, 0, 1, 4.0),
    Sketcher.Constraint("DistanceX", 1, 3, -1, 1, 89.0),
    Sketcher.Constraint("DistanceX", 9, 3, -1, 1, 65.0),
    Sketcher.Constraint("DistanceY", 1, 3, -1, 1, 49.906381),
    Sketcher.Constraint("DistanceY", 13, 3, -1, 1, 74.906381),
    Sketcher.Constraint("DistanceX", -1, 1, 5, 3, 61.206127),
    Sketcher.Constraint("DistanceX", -1, 1, 21, 3, 85.206127),
])
pocket2 = body.newObject("PartDesign::Pocket", "Pocket001")
pocket2.Profile = sketch3
pocket2.Length = 10
pocket2.Reversed = True

# Sketch on XZ plane
sketch4 = body.newObject("Sketcher::SketchObject", "Sketch003")
sketch4.AttachmentSupport = (doc.getObject("XZ_Plane"), [""])
sketch4.MapMode = "FlatFace"
sketch4.AttachmentOffset = App.Placement(App.Vector(0, 0, -5), App.Rotation())
sketch4.addGeometry([
    Part.Circle(App.Vector(8.5, -5.9, 0), App.Vector(0, 0, 1), 1.7),
    Part.Circle(App.Vector(-8.3, -5.9, 0), App.Vector(0, 0, 1), 1.7),
], False)
sketch4.addConstraint([
    Sketcher.Constraint("Equal", 0, 1),
    Sketcher.Constraint("Diameter", 0, 3.4),
    Sketcher.Constraint("DistanceX", 1, 3, -1, 1, 8.296901),
    Sketcher.Constraint("DistanceX", 1, 3, 0, 3, 16.799929),
    Sketcher.Constraint("DistanceY", 0, 3, -1, 1, 5.894014),
    Sketcher.Constraint("DistanceY", 1, 3, -1, 1, 5.851278),
])
pocket3 = body.newObject("PartDesign::Pocket", "Pocket002")
pocket3.Profile = sketch4
pocket3.Length = 10
pocket3.Reversed = True

# Sketch on XZ plane
sketch5 = body.newObject("Sketcher::SketchObject", "Sketch004")
sketch5.AttachmentSupport = (doc.getObject("XZ_Plane"), [""])
sketch5.MapMode = "FlatFace"
sketch5.AttachmentOffset = App.Placement(App.Vector(0, 0, -5), App.Rotation())
sketch5.addGeometry([
    Part.Circle(App.Vector(-149.2, -46.7, 0), App.Vector(0, 0, 1), 1.6),  # 0
    Part.Circle(App.Vector(-149.2, 48.7, 0), App.Vector(0, 0, 1), 1.6),  # 1
    Part.Circle(App.Vector(-44.8, 82, 0), App.Vector(0, 0, 1), 1.6),  # 2
    Part.Circle(App.Vector(-44.8, -82, 0), App.Vector(0, 0, 1), 1.6),  # 3
    Part.Circle(App.Vector(45, -82, 0), App.Vector(0, 0, 1), 1.6),  # 4
    Part.Circle(App.Vector(149.4, -46.7, 0), App.Vector(0, 0, 1), 1.6),  # 5
    Part.Circle(App.Vector(149.4, 48.7, 0), App.Vector(0, 0, 1), 1.6),  # 6
    Part.Circle(App.Vector(45, 82, 0), App.Vector(0, 0, 1), 1.6),  # 7
], False)
sketch5.addConstraint([
    Sketcher.Constraint("Equal", 0, 1),
    Sketcher.Constraint("Equal", 1, 2),
    Sketcher.Constraint("Equal", 2, 3),
    Sketcher.Constraint("Equal", 3, 4),
    Sketcher.Constraint("Equal", 4, 5),
    Sketcher.Constraint("Equal", 5, 6),
    Sketcher.Constraint("Equal", 6, 7),
    Sketcher.Constraint("Symmetric", 4, 3, 7, 3, -1),
    Sketcher.Constraint("Horizontal", 3, 3, 4, 3),
    Sketcher.Constraint("Horizontal", 0, 3, 5, 3),
    Sketcher.Constraint("Horizontal", 1, 3, 6, 3),
    Sketcher.Constraint("Horizontal", 2, 3, 7, 3),
    Sketcher.Constraint("Vertical", 0, 3, 1, 3),
    Sketcher.Constraint("Vertical", 5, 3, 6, 3),
    Sketcher.Constraint("Diameter", 0, 3.1),
    Sketcher.Constraint("DistanceY", -1, 1, 2, 3, 82.0),
    Sketcher.Constraint("DistanceY", -1, 1, 1, 3, 48.715349),
    Sketcher.Constraint("DistanceX", 2, 3, -1, 1, 44.818511),
    Sketcher.Constraint("DistanceX", 3, 3, -1, 1, 44.776579),
    Sketcher.Constraint("DistanceX", -1, 1, 5, 3, 149.412172),
    Sketcher.Constraint("DistanceX", 0, 3, 4, 3, 194.188751),
    Sketcher.Constraint("DistanceX", 0, 3, -1, 1, 149.206045),
    Sketcher.Constraint("DistanceY", 0, 3, -1, 1, 46.655176),
])
pocket4 = body.newObject("PartDesign::Pocket", "Pocket003")
pocket4.Profile = sketch5
pocket4.Length = 10
pocket4.Reversed = True

# Sketch on XZ plane
sketch6 = body.newObject("Sketcher::SketchObject", "Sketch005")
sketch6.AttachmentSupport = (doc.getObject("XZ_Plane"), [""])
sketch6.MapMode = "FlatFace"
sketch6.AttachmentOffset = App.Placement(App.Vector(0, 0, -5), App.Rotation())
sketch6.addGeometry([
    Part.Circle(App.Vector(-34.5, -61, 0), App.Vector(0, 0, 1), 2),
    Part.Circle(App.Vector(34.5, -61, 0), App.Vector(0, 0, 1), 2),
    Part.Circle(App.Vector(34.5, 61, 0), App.Vector(0, 0, 1), 2),
    Part.Circle(App.Vector(-34.5, 61, 0), App.Vector(0, 0, 1), 2),
], False)
sketch6.addConstraint([
    Sketcher.Constraint("Equal", 0, 1),
    Sketcher.Constraint("Equal", 1, 2),
    Sketcher.Constraint("Equal", 2, 3),
    Sketcher.Constraint("Symmetric", 0, 3, 2, 3, -1, 1),
    Sketcher.Constraint("Symmetric", 1, 3, 3, 3, -1, 1),
    Sketcher.Constraint("Symmetric", 0, 3, 1, 3, -2),
    Sketcher.Constraint("Diameter", 0, 4.0),
    Sketcher.Constraint("DistanceX", 0, 3, 1, 3, 68.94547),
    Sketcher.Constraint("DistanceY", 0, 3, -1, 1, 61.038067),
])
pocket5 = body.newObject("PartDesign::Pocket", "Pocket004")
pocket5.Profile = sketch6
pocket5.Length = 15
pocket5.Reversed = True

# Sketch on XZ plane
sketch7 = body.newObject("Sketcher::SketchObject", "Sketch006")
sketch7.AttachmentSupport = (doc.getObject("XZ_Plane"), [""])
sketch7.MapMode = "FlatFace"
sketch7.AttachmentOffset = App.Placement(App.Vector(0, 0, -5), App.Rotation())
sketch7.addGeometry([
    Part.Circle(App.Vector(-25, -30, 0), App.Vector(0, 0, 1), 1.6),
    Part.Circle(App.Vector(25, -30, 0), App.Vector(0, 0, 1), 1.6),
    Part.Circle(App.Vector(25, 30, 0), App.Vector(0, 0, 1), 1.6),
    Part.Circle(App.Vector(-25, 30, 0), App.Vector(0, 0, 1), 1.6),
], False)
sketch7.addConstraint([
    Sketcher.Constraint("Equal", 0, 1),
    Sketcher.Constraint("Equal", 1, 2),
    Sketcher.Constraint("Equal", 2, 3),
    Sketcher.Constraint("Symmetric", 0, 3, 2, 3, -1, 1),
    Sketcher.Constraint("Symmetric", 1, 3, 3, 3, -1, 1),
    Sketcher.Constraint("Symmetric", 0, 3, 1, 3, -2),
    Sketcher.Constraint("Diameter", 0, 3.2),
    Sketcher.Constraint("DistanceX", 0, 3, -1, 1, 25.0),
    Sketcher.Constraint("DistanceY", 0, 3, -1, 1, 30.0),
])
pocket6 = body.newObject("PartDesign::Pocket", "Pocket005")
pocket6.Profile = sketch7
pocket6.Length = 10
pocket6.Reversed = True

doc.recompute()
